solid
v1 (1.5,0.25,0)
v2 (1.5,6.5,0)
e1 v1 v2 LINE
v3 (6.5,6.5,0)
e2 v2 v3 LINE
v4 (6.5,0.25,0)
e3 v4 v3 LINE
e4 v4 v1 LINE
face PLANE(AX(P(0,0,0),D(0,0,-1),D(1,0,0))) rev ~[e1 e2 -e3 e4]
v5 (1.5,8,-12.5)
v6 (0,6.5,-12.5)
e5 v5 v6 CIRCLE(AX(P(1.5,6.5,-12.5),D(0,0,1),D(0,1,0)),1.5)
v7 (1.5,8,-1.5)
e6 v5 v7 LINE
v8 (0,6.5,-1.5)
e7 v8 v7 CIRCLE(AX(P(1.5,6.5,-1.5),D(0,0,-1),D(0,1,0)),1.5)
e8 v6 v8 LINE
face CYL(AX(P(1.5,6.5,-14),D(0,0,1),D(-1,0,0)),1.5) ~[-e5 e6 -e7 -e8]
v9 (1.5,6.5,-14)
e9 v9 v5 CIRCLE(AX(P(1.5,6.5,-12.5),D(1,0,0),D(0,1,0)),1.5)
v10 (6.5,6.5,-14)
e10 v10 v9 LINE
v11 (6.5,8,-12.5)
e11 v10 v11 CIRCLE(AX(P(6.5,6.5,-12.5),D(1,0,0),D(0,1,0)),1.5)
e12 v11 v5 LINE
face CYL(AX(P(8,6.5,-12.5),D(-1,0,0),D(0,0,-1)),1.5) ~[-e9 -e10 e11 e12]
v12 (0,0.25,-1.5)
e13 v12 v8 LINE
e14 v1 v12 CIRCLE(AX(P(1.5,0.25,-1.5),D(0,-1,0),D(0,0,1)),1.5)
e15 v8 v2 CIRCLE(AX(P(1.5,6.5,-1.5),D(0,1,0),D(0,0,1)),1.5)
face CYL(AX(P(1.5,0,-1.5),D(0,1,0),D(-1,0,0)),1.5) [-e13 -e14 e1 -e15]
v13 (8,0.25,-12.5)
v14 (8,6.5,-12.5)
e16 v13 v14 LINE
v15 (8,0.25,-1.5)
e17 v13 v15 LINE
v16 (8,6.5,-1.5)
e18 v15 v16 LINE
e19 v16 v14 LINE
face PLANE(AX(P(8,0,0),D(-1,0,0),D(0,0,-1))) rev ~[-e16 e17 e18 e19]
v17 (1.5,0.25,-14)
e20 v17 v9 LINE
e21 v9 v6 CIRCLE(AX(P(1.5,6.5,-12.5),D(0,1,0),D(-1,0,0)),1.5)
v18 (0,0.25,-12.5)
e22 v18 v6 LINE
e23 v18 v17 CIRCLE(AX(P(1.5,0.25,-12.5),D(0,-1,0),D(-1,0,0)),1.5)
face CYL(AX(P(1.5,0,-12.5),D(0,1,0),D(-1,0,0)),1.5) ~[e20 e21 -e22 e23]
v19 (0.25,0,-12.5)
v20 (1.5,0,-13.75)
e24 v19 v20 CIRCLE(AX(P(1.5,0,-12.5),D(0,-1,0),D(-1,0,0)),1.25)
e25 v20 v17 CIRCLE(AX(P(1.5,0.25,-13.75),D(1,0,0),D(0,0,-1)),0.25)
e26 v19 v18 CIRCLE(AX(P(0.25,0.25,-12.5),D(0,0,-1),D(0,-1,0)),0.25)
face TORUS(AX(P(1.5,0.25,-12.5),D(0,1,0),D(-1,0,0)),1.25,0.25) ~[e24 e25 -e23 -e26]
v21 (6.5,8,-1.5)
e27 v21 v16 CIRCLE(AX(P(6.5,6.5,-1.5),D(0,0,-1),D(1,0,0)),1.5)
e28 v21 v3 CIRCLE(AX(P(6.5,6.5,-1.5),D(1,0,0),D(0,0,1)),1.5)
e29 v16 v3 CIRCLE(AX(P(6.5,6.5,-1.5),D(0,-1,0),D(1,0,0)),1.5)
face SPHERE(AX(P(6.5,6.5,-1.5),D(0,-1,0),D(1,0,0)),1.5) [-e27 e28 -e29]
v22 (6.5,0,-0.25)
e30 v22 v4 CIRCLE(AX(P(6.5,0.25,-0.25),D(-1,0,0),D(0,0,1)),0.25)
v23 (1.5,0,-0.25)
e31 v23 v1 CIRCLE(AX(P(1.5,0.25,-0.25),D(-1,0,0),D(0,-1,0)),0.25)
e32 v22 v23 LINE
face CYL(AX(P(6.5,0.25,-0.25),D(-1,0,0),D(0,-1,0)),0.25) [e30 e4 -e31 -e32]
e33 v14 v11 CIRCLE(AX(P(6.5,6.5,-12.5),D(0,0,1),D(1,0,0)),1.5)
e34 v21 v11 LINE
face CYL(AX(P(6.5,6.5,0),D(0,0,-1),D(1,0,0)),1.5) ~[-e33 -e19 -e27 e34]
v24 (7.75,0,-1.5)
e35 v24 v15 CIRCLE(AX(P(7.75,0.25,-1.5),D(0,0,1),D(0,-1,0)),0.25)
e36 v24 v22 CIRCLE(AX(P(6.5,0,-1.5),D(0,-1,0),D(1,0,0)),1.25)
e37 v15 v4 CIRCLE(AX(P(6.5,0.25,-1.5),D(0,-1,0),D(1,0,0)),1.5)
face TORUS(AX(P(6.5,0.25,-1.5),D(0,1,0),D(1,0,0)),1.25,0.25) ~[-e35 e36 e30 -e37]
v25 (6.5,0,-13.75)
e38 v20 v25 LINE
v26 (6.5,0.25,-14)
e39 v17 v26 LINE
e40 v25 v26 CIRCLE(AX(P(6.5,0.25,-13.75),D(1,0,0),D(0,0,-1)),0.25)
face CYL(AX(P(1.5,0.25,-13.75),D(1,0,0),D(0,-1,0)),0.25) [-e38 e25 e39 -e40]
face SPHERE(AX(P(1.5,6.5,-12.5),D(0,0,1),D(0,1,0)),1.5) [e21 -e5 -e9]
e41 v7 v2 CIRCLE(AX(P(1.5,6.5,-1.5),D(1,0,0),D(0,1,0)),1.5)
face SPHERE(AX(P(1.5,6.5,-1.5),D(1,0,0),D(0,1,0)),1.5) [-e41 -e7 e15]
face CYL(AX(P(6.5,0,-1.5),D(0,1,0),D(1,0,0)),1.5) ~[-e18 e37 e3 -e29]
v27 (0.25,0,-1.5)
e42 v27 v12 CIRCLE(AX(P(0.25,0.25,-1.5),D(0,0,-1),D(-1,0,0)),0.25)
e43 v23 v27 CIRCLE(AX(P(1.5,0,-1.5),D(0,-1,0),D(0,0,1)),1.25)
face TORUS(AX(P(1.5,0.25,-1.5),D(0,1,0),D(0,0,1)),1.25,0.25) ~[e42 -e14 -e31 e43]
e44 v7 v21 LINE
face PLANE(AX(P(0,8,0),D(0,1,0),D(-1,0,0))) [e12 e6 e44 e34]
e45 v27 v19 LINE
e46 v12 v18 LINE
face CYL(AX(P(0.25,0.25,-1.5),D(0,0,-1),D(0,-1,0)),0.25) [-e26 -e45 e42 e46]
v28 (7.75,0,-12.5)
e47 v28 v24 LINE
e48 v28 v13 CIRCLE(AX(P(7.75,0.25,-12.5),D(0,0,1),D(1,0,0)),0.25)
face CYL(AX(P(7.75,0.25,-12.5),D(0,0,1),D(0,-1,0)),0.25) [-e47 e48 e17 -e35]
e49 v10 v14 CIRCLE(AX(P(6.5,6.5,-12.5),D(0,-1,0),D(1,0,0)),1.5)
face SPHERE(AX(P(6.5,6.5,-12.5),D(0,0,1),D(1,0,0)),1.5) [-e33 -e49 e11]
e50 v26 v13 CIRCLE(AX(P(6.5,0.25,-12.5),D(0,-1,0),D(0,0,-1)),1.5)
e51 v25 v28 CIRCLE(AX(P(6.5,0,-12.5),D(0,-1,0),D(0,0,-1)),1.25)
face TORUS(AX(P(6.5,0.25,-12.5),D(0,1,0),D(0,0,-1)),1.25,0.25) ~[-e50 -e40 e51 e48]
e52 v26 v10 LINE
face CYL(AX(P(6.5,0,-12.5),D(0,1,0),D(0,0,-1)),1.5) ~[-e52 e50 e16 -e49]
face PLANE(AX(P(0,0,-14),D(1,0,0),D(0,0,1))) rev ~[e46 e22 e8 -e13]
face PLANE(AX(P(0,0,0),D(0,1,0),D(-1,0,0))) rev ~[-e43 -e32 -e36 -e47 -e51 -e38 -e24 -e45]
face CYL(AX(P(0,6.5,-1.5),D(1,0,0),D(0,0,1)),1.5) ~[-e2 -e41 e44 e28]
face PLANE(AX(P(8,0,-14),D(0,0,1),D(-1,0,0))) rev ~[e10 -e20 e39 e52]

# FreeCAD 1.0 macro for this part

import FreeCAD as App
import Part
import Sketcher
from FreeCAD import Vector
Q = App.Units.Quantity


def edges_at(feature, points):
    """Names of the edges that pass closest to the given points."""
    edges = feature.Shape.Edges
    near = lambda p: min(range(len(edges)), key=lambda i: edges[i].distToShape(Part.Vertex(*p))[0])
    return sorted({f"Edge{near(p) + 1}" for p in points})


def add_polygon(sketch, points):
    """Adds a closed chain of lines whose ends are joined by coincident constraints."""
    first, n = sketch.GeometryCount, len(points)
    for a, b in zip(points, points[1:] + points[:1]):
        sketch.addGeometry(Part.LineSegment(App.Vector(*a, 0), App.Vector(*b, 0)), False)
    for i in range(n):
        sketch.addConstraint(Sketcher.Constraint("Coincident", first + i, 2, first + (i + 1) % n, 1))

doc = App.newDocument("Part")
body = doc.addObject("PartDesign::Body", "Body")

sketch1 = body.newObject("Sketcher::SketchObject", "Sketch")
sketch1.AttachmentSupport = (doc.getObject("XZ_Plane"), [""])
sketch1.MapMode = "FlatFace"
add_polygon(sketch1, [(0, -14), (0, 0), (8, 0), (8, -14)])
sketch1.addConstraint(Sketcher.Constraint("Vertical", 0))
sketch1.addConstraint(Sketcher.Constraint("Horizontal", 1))
sketch1.addConstraint(Sketcher.Constraint("Vertical", 2))
sketch1.addConstraint(Sketcher.Constraint("Horizontal", 3))
sketch1.addConstraint(Sketcher.Constraint("Coincident", 0, 2, -1, 1))
sketch1.addConstraint(Sketcher.Constraint("DistanceX", 1, 1, 1, 2, Q("8 mm")))
sketch1.addConstraint(Sketcher.Constraint("DistanceY", 0, 1, 0, 2, Q("14 mm")))
pad1 = body.newObject("PartDesign::Pad", "Pad")
pad1.Profile = sketch1
pad1.Length = 8
pad1.Reversed = True
doc.recompute()

fillet = body.newObject("PartDesign::Fillet", "Fillet")
fillet.Base = (pad1, edges_at(pad1, [
    (8, 4, 0),
    (8, 8, -7),
    (4, 8, 0),
    (0, 8, -7),
    (0, 4, 0),
    (8, 4, -14),
    (4, 8, -14),
    (0, 4, -14),
]))
fillet.Radius = 1.5
doc.recompute()

fillet2 = body.newObject("PartDesign::Fillet", "Fillet001")
fillet2.Base = (fillet, edges_at(fillet, [
    (7.561, 0, -13.561),
    (4, 0, -14),
    (0.439, 0, -13.561),
    (0, 0, -7),
    (0.439, 0, -0.439),
    (4, 0, 0),
    (7.561, 0, -0.439),
    (8, 0, -7),
]))
fillet2.Radius = 0.25

doc.recompute()
